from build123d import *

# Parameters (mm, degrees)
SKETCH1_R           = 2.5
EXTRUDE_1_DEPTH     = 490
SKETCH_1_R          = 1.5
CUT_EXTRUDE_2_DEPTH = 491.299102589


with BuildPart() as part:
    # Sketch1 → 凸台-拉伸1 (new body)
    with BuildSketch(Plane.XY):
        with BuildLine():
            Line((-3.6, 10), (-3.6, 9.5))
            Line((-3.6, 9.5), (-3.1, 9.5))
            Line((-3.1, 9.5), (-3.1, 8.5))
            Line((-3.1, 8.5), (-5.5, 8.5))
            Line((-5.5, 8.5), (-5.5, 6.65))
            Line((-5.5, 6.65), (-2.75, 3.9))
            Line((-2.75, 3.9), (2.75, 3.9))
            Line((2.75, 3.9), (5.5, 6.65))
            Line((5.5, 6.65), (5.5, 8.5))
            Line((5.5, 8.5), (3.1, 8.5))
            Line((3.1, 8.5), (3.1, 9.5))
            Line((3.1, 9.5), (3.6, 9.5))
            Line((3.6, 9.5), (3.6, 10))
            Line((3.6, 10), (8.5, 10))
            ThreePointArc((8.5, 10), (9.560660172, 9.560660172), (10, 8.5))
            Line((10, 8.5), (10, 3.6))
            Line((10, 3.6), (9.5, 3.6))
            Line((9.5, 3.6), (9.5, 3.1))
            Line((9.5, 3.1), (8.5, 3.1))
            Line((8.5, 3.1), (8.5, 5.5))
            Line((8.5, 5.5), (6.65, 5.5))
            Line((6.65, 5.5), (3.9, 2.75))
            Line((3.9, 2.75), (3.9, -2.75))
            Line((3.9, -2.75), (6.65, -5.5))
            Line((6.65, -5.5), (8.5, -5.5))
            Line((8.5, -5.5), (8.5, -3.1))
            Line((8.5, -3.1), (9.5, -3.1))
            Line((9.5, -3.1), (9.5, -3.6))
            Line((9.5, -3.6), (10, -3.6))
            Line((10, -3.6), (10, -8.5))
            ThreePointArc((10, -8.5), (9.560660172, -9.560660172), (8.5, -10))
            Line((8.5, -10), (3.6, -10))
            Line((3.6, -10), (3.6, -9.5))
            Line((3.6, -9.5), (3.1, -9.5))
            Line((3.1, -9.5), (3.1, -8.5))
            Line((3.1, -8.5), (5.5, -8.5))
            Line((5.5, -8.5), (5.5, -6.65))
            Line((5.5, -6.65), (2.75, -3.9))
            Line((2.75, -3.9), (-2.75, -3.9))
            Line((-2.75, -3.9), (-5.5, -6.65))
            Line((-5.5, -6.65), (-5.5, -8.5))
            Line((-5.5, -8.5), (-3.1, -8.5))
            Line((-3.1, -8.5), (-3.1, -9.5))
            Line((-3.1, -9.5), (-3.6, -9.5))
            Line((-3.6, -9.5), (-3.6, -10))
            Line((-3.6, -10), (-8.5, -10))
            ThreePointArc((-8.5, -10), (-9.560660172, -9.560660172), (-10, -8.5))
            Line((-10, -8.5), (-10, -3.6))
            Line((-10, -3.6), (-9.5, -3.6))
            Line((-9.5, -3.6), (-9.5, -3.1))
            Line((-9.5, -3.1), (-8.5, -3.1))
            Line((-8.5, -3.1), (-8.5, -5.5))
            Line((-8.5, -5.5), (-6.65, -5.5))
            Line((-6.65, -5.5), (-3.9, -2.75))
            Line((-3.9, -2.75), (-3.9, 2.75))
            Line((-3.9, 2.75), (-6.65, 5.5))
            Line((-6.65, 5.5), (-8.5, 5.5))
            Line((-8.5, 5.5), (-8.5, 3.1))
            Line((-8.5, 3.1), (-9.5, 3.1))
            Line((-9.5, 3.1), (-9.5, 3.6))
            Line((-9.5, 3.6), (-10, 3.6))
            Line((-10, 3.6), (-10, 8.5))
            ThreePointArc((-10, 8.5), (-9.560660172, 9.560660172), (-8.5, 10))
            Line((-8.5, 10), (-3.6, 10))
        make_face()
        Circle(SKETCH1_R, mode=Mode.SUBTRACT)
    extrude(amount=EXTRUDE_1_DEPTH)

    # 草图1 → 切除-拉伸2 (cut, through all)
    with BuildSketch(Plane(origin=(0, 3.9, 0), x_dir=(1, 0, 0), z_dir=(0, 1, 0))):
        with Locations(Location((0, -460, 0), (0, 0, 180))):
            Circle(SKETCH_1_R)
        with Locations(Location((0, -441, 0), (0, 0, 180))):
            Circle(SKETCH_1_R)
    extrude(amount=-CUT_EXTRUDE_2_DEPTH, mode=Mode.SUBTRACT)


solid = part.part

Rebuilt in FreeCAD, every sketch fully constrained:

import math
import FreeCAD as App
import Part
import Sketcher

doc = App.newDocument("Part")
params = doc.addObject("Spreadsheet::Sheet", "Params")
for row, (alias, value) in enumerate([
    ("sketch1_diameter", "5 mm"),
    ("sketch1_radius", "1.5 mm"),
    ("sketch1_width", "1 mm"),
    ("sketch1_width2", "4.9 mm"),
    ("sketch1_width3", "2.4 mm"),
    ("pad1_length", "490 mm"),
    ("sketch2_diameter", "3 mm"),
], start=1):
    params.set(f"A{row}", alias)
    params.set(f"B{row}", "=" + value)
    params.setAlias(f"B{row}", alias)

body = doc.addObject("PartDesign::Body", "Body")

# Sketch on XY plane
sketch1 = body.newObject("Sketcher::SketchObject", "Sketch")
sketch1.AttachmentSupport = (doc.getObject("XY_Plane"), [""])
sketch1.MapMode = "FlatFace"
sketch1.addGeometry([
    Part.LineSegment(App.Vector(-3.6, 9.5, 0), App.Vector(-3.6, 10, 0)),  # 0
    Part.LineSegment(App.Vector(-3.6, 10, 0), App.Vector(-8.5, 10, 0)),  # 1
    Part.ArcOfCircle(Part.Circle(App.Vector(-8.5, 8.5, 0), App.Vector(0, 0, 1), 1.5), math.radians(90), math.radians(180)),  # 2
    Part.LineSegment(App.Vector(-10, 8.5, 0), App.Vector(-10, 3.6, 0)),  # 3
    Part.LineSegment(App.Vector(-10, 3.6, 0), App.Vector(-9.5, 3.6, 0)),  # 4
    Part.LineSegment(App.Vector(-9.5, 3.6, 0), App.Vector(-9.5, 3.1, 0)),  # 5
    Part.LineSegment(App.Vector(-9.5, 3.1, 0), App.Vector(-8.5, 3.1, 0)),  # 6
    Part.LineSegment(App.Vector(-8.5, 3.1, 0), App.Vector(-8.5, 5.5, 0)),  # 7
    Part.LineSegment(App.Vector(-8.5, 5.5, 0), App.Vector(-6.7, 5.5, 0)),  # 8
    Part.LineSegment(App.Vector(-6.7, 5.5, 0), App.Vector(-3.9, 2.8, 0)),  # 9
    Part.LineSegment(App.Vector(-3.9, 2.8, 0), App.Vector(-3.9, -2.8, 0)),  # 10
    Part.LineSegment(App.Vector(-3.9, -2.8, 0), App.Vector(-6.7, -5.5, 0)),  # 11
    Part.LineSegment(App.Vector(-6.7, -5.5, 0), App.Vector(-8.5, -5.5, 0)),  # 12
    Part.LineSegment(App.Vector(-8.5, -5.5, 0), App.Vector(-8.5, -3.1, 0)),  # 13
    Part.LineSegment(App.Vector(-8.5, -3.1, 0), App.Vector(-9.5, -3.1, 0)),  # 14
    Part.LineSegment(App.Vector(-9.5, -3.1, 0), App.Vector(-9.5, -3.6, 0)),  # 15
    Part.LineSegment(App.Vector(-9.5, -3.6, 0), App.Vector(-10, -3.6, 0)),  # 16
    Part.LineSegment(App.Vector(-10, -3.6, 0), App.Vector(-10, -8.5, 0)),  # 17
    Part.ArcOfCircle(Part.Circle(App.Vector(-8.5, -8.5, 0), App.Vector(0, 0, 1), 1.5), math.radians(180), math.radians(270)),  # 18
    Part.LineSegment(App.Vector(-8.5, -10, 0), App.Vector(-3.6, -10, 0)),  # 19
    Part.LineSegment(App.Vector(-3.6, -10, 0), App.Vector(-3.6, -9.5, 0)),  # 20
    Part.LineSegment(App.Vector(-3.6, -9.5, 0), App.Vector(-3.1, -9.5, 0)),  # 21
    Part.LineSegment(App.Vector(-3.1, -9.5, 0), App.Vector(-3.1, -8.5, 0)),  # 22
    Part.LineSegment(App.Vector(-3.1, -8.5, 0), App.Vector(-5.5, -8.5, 0)),  # 23
    Part.LineSegment(App.Vector(-5.5, -8.5, 0), App.Vector(-5.5, -6.7, 0)),  # 24
    Part.LineSegment(App.Vector(-5.5, -6.7, 0), App.Vector(-2.8, -3.9, 0)),  # 25
    Part.LineSegment(App.Vector(-2.8, -3.9, 0), App.Vector(2.8, -3.9, 0)),  # 26
    Part.LineSegment(App.Vector(2.8, -3.9, 0), App.Vector(5.5, -6.7, 0)),  # 27
    Part.LineSegment(App.Vector(5.5, -6.7, 0), App.Vector(5.5, -8.5, 0)),  # 28
    Part.LineSegment(App.Vector(5.5, -8.5, 0), App.Vector(3.1, -8.5, 0)),  # 29
    Part.LineSegment(App.Vector(3.1, -8.5, 0), App.Vector(3.1, -9.5, 0)),  # 30
    Part.LineSegment(App.Vector(3.1, -9.5, 0), App.Vector(3.6, -9.5, 0)),  # 31
    Part.LineSegment(App.Vector(3.6, -9.5, 0), App.Vector(3.6, -10, 0)),  # 32
    Part.LineSegment(App.Vector(3.6, -10, 0), App.Vector(8.5, -10, 0)),  # 33
    Part.ArcOfCircle(Part.Circle(App.Vector(8.5, -8.5, 0), App.Vector(0, 0, 1), 1.5), math.radians(-90), math.radians(0)),  # 34
    Part.LineSegment(App.Vector(10, -8.5, 0), App.Vector(10, -3.6, 0)),  # 35
    Part.LineSegment(App.Vector(10, -3.6, 0), App.Vector(9.5, -3.6, 0)),  # 36
    Part.LineSegment(App.Vector(9.5, -3.6, 0), App.Vector(9.5, -3.1, 0)),  # 37
    Part.LineSegment(App.Vector(9.5, -3.1, 0), App.Vector(8.5, -3.1, 0)),  # 38
    Part.LineSegment(App.Vector(8.5, -3.1, 0), App.Vector(8.5, -5.5, 0)),  # 39
    Part.LineSegment(App.Vector(8.5, -5.5, 0), App.Vector(6.7, -5.5, 0)),  # 40
    Part.LineSegment(App.Vector(6.7, -5.5, 0), App.Vector(3.9, -2.8, 0)),  # 41
    Part.LineSegment(App.Vector(3.9, -2.8, 0), App.Vector(3.9, 2.8, 0)),  # 42
    Part.LineSegment(App.Vector(3.9, 2.8, 0), App.Vector(6.7, 5.5, 0)),  # 43
    Part.LineSegment(App.Vector(6.7, 5.5, 0), App.Vector(8.5, 5.5, 0)),  # 44
    Part.LineSegment(App.Vector(8.5, 5.5, 0), App.Vector(8.5, 3.1, 0)),  # 45
    Part.LineSegment(App.Vector(8.5, 3.1, 0), App.Vector(9.5, 3.1, 0)),  # 46
    Part.LineSegment(App.Vector(9.5, 3.1, 0), App.Vector(9.5, 3.6, 0)),  # 47
    Part.LineSegment(App.Vector(9.5, 3.6, 0), App.Vector(10, 3.6, 0)),  # 48
    Part.LineSegment(App.Vector(10, 3.6, 0), App.Vector(10, 8.5, 0)),  # 49
    Part.ArcOfCircle(Part.Circle(App.Vector(8.5, 8.5, 0), App.Vector(0, 0, 1), 1.5), math.radians(0), math.radians(90)),  # 50
    Part.LineSegment(App.Vector(8.5, 10, 0), App.Vector(3.6, 10, 0)),  # 51
    Part.LineSegment(App.Vector(3.6, 10, 0), App.Vector(3.6, 9.5, 0)),  # 52
    Part.LineSegment(App.Vector(3.6, 9.5, 0), App.Vector(3.1, 9.5, 0)),  # 53
    Part.LineSegment(App.Vector(3.1, 9.5, 0), App.Vector(3.1, 8.5, 0)),  # 54
    Part.LineSegment(App.Vector(3.1, 8.5, 0), App.Vector(5.5, 8.5, 0)),  # 55
    Part.LineSegment(App.Vector(5.5, 8.5, 0), App.Vector(5.5, 6.7, 0)),  # 56
    Part.LineSegment(App.Vector(5.5, 6.7, 0), App.Vector(2.8, 3.9, 0)),  # 57
    Part.LineSegment(App.Vector(2.8, 3.9, 0), App.Vector(-2.8, 3.9, 0)),  # 58
    Part.LineSegment(App.Vector(-2.8, 3.9, 0), App.Vector(-5.5, 6.7, 0)),  # 59
    Part.LineSegment(App.Vector(-5.5, 6.7, 0), App.Vector(-5.5, 8.5, 0)),  # 60
    Part.LineSegment(App.Vector(-5.5, 8.5, 0), App.Vector(-3.1, 8.5, 0)),  # 61
    Part.LineSegment(App.Vector(-3.1, 8.5, 0), App.Vector(-3.1, 9.5, 0)),  # 62
    Part.LineSegment(App.Vector(-3.1, 9.5, 0), App.Vector(-3.6, 9.5, 0)),  # 63
    Part.Circle(App.Vector(0, 0, 0), App.Vector(0, 0, 1), 2.5),  # 64
], False)
sketch1.addConstraint([
    Sketcher.Constraint("Coincident", 0, 2, 1, 1),
    Sketcher.Constraint("Tangent", 1, 2, 2, 1),
    Sketcher.Constraint("Tangent", 2, 2, 3, 1),
    Sketcher.Constraint("Coincident", 3, 2, 4, 1),
    Sketcher.Constraint("Coincident", 4, 2, 5, 1),
    Sketcher.Constraint("Coincident", 5, 2, 6, 1),
    Sketcher.Constraint("Coincident", 6, 2, 7, 1),
    Sketcher.Constraint("Coincident", 7, 2, 8, 1),
    Sketcher.Constraint("Coincident", 8, 2, 9, 1),
    Sketcher.Constraint("Coincident", 9, 2, 10, 1),
    Sketcher.Constraint("Coincident", 10, 2, 11, 1),
    Sketcher.Constraint("Coincident", 11, 2, 12, 1),
    Sketcher.Constraint("Coincident", 12, 2, 13, 1),
    Sketcher.Constraint("Coincident", 13, 2, 14, 1),
    Sketcher.Constraint("Coincident", 14, 2, 15, 1),
    Sketcher.Constraint("Coincident", 15, 2, 16, 1),
    Sketcher.Constraint("Coincident", 16, 2, 17, 1),
    Sketcher.Constraint("Tangent", 17, 2, 18, 1),
    Sketcher.Constraint("Tangent", 18, 2, 19, 1),
    Sketcher.Constraint("Coincident", 19, 2, 20, 1),
    Sketcher.Constraint("Coincident", 20, 2, 21, 1),
    Sketcher.Constraint("Coincident", 21, 2, 22, 1),
    Sketcher.Constraint("Coincident", 22, 2, 23, 1),
    Sketcher.Constraint("Coincident", 23, 2, 24, 1),
    Sketcher.Constraint("Coincident", 24, 2, 25, 1),
    Sketcher.Constraint("Coincident", 25, 2, 26, 1),
    Sketcher.Constraint("Coincident", 26, 2, 27, 1),
    Sketcher.Constraint("Coincident", 27, 2, 28, 1),
    Sketcher.Constraint("Coincident", 28, 2, 29, 1),
    Sketcher.Constraint("Coincident", 29, 2, 30, 1),
    Sketcher.Constraint("Coincident", 30, 2, 31, 1),
    Sketcher.Constraint("Coincident", 31, 2, 32, 1),
    Sketcher.Constraint("Coincident", 32, 2, 33, 1),
    Sketcher.Constraint("Tangent", 33, 2, 34, 1),
    Sketcher.Constraint("Tangent", 34, 2, 35, 1),
    Sketcher.Constraint("Coincident", 35, 2, 36, 1),
    Sketcher.Constraint("Coincident", 36, 2, 37, 1),
    Sketcher.Constraint("Coincident", 37, 2, 38, 1),
    Sketcher.Constraint("Coincident", 38, 2, 39, 1),
    Sketcher.Constraint("Coincident", 39, 2, 40, 1),
    Sketcher.Constraint("Coincident", 40, 2, 41, 1),
    Sketcher.Constraint("Coincident", 41, 2, 42, 1),
    Sketcher.Constraint("Coincident", 42, 2, 43, 1),
    Sketcher.Constraint("Coincident", 43, 2, 44, 1),
    Sketcher.Constraint("Coincident", 44, 2, 45, 1),
    Sketcher.Constraint("Coincident", 45, 2, 46, 1),
    Sketcher.Constraint("Coincident", 46, 2, 47, 1),
    Sketcher.Constraint("Coincident", 47, 2, 48, 1),
    Sketcher.Constraint("Coincident", 48, 2, 49, 1),
    Sketcher.Constraint("Tangent", 49, 2, 50, 1),
    Sketcher.Constraint("Tangent", 50, 2, 51, 1),
    Sketcher.Constraint("Coincident", 51, 2, 52, 1),
    Sketcher.Constraint("Coincident", 52, 2, 53, 1),
    Sketcher.Constraint("Coincident", 53, 2, 54, 1),
    Sketcher.Constraint("Coincident", 54, 2, 55, 1),
    Sketcher.Constraint("Coincident", 55, 2, 56, 1),
    Sketcher.Constraint("Coincident", 56, 2, 57, 1),
    Sketcher.Constraint("Coincident", 57, 2, 58, 1),
    Sketcher.Constraint("Coincident", 58, 2, 59, 1),
    Sketcher.Constraint("Coincident", 59, 2, 60, 1),
    Sketcher.Constraint("Coincident", 60, 2, 61, 1),
    Sketcher.Constraint("Coincident", 61, 2, 62, 1),
    Sketcher.Constraint("Coincident", 62, 2, 63, 1),
    Sketcher.Constraint("Coincident", 63, 2, 0, 1),
    Sketcher.Constraint("Vertical", 0),
    Sketcher.Constraint("Horizontal", 1),
    Sketcher.Constraint("Vertical", 3),
    Sketcher.Constraint("Horizontal", 4),
    Sketcher.Constraint("Vertical", 5),
    Sketcher.Constraint("Horizontal", 6),
    Sketcher.Constraint("Vertical", 7),
    Sketcher.Constraint("Horizontal", 8),
    Sketcher.Constraint("Vertical", 10),
    Sketcher.Constraint("Horizontal", 12),
    Sketcher.Constraint("Vertical", 13),
    Sketcher.Constraint("Horizontal", 14),
    Sketcher.Constraint("Vertical", 15),
    Sketcher.Constraint("Horizontal", 16),
    Sketcher.Constraint("Vertical", 17),
    Sketcher.Constraint("Horizontal", 19),
    Sketcher.Constraint("Vertical", 20),
    Sketcher.Constraint("Horizontal", 21),
    Sketcher.Constraint("Vertical", 22),
    Sketcher.Constraint("Horizontal", 23),
    Sketcher.Constraint("Vertical", 24),
    Sketcher.Constraint("Horizontal", 26),
    Sketcher.Constraint("Vertical", 28),
    Sketcher.Constraint("Horizontal", 29),
    Sketcher.Constraint("Vertical", 30),
    Sketcher.Constraint("Horizontal", 31),
    Sketcher.Constraint("Vertical", 32),
    Sketcher.Constraint("Horizontal", 33),
    Sketcher.Constraint("Vertical", 35),
    Sketcher.Constraint("Horizontal", 36),
    Sketcher.Constraint("Vertical", 37),
    Sketcher.Constraint("Horizontal", 38),
    Sketcher.Constraint("Vertical", 39),
    Sketcher.Constraint("Horizontal", 40),
    Sketcher.Constraint("Vertical", 42),
    Sketcher.Constraint("Horizontal", 44),
    Sketcher.Constraint("Vertical", 45),
    Sketcher.Constraint("Horizontal", 46),
    Sketcher.Constraint("Vertical", 47),
    Sketcher.Constraint("Horizontal", 48),
    Sketcher.Constraint("Vertical", 49),
    Sketcher.Constraint("Horizontal", 51),
    Sketcher.Constraint("Vertical", 52),
    Sketcher.Constraint("Horizontal", 53),
    Sketcher.Constraint("Vertical", 54),
    Sketcher.Constraint("Horizontal", 55),
    Sketcher.Constraint("Vertical", 56),
    Sketcher.Constraint("Horizontal", 58),
    Sketcher.Constraint("Vertical", 60),
    Sketcher.Constraint("Horizontal", 61),
    Sketcher.Constraint("Vertical", 62),
    Sketcher.Constraint("Horizontal", 63),
    Sketcher.Constraint("Coincident", 64, 3, -1, 1),
    Sketcher.Constraint("Equal", 2, 18),
    Sketcher.Constraint("Equal", 18, 34),
    Sketcher.Constraint("Equal", 34, 50),
    Sketcher.Constraint("Symmetric", 2, 3, 34, 3, -1, 1),
    Sketcher.Constraint("Symmetric", 18, 3, 50, 3, -1, 1),
    Sketcher.Constraint("Symmetric", 4, 2, 36, 2, -1, 1),
    Sketcher.Constraint("Symmetric", 6, 2, 38, 2, -1, 1),
    Sketcher.Constraint("Symmetric", 8, 2, 40, 2, -1, 1),
    Sketcher.Constraint("Symmetric", 9, 2, 41, 2, -1, 1),
    Sketcher.Constraint("Symmetric", 11, 2, 43, 2, -1, 1),
    Sketcher.Constraint("Symmetric", 13, 2, 45, 2, -1, 1),
    Sketcher.Constraint("Symmetric", 15, 2, 47, 2, -1, 1),
    Sketcher.Constraint("Symmetric", 20, 2, 52, 2, -1, 1),
    Sketcher.Constraint("Symmetric", 22, 2, 54, 2, -1, 1),
    Sketcher.Constraint("Symmetric", 24, 2, 56, 2, -1, 1),
    Sketcher.Constraint("Symmetric", 25, 2, 57, 2, -1, 1),
    Sketcher.Constraint("Symmetric", 27, 2, 59, 2, -1, 1),
    Sketcher.Constraint("Symmetric", 29, 2, 61, 2, -1, 1),
    Sketcher.Constraint("Symmetric", 31, 2, 63, 2, -1, 1),
    Sketcher.Constraint("Symmetric", 18, 3, 34, 3, -2),
    Sketcher.Constraint("Symmetric", 24, 2, 27, 2, -2),
    Sketcher.Constraint("Symmetric", 22, 2, 29, 2, -2),
    Sketcher.Constraint("Symmetric", 20, 2, 31, 2, -2),
    Sketcher.Constraint("Symmetric", 15, 2, 36, 2, -2),
    Sketcher.Constraint("Symmetric", 13, 2, 38, 2, -2),
    Sketcher.Constraint("Symmetric", 11, 2, 40, 2, -2),
    Sketcher.Constraint("Perpendicular", 9, 11),
    Sketcher.Constraint("Parallel", 11, 25),
    Sketcher.Constraint("Perpendicular", 25, 27),
    Sketcher.Constraint("Perpendicular", 41, 43),
    Sketcher.Constraint("Perpendicular", 57, 59),
    Sketcher.Constraint("Horizontal", 17, 2, 22, 2),
    Sketcher.Constraint("Horizontal", 10, 2, 41, 2),
    Sketcher.Constraint("Vertical", 1, 2, 6, 2),
    Sketcher.Constraint("Equal", 16, 21),
    Sketcher.Constraint("Equal", 63, 0),
    Sketcher.Constraint("Equal", 51, 3),
    Sketcher.Constraint("Equal", 0, 5),
    Sketcher.Constraint("Equal", 61, 7),
    Sketcher.Constraint("Equal", 58, 10),
    Sketcher.Constraint("Equal", 44, 24),
    Sketcher.Constraint("Equal", 11, 25),
    Sketcher.Constraint("Diameter", 64, 5.0),
    Sketcher.Constraint("Radius", 2, 1.5),
    Sketcher.Constraint("DistanceX", 6, 1, 6, 2, 1.0),
    Sketcher.Constraint("DistanceX", 1, 2, 1, 1, 4.9),
    Sketcher.Constraint("DistanceX", 23, 2, 23, 1, 2.4),
    Sketcher.Constraint("DistanceX", 26, 1, 26, 2, 5.5),
    Sketcher.Constraint("DistanceY", -1, 1, 0, 2, 10.0),
    Sketcher.Constraint("DistanceX", 8, 1, 8, 2, 1.85),
])
sketch1.setExpression("Constraints[159]", "Params.sketch1_diameter")
sketch1.setExpression("Constraints[160]", "Params.sketch1_radius")
sketch1.setExpression("Constraints[161]", "Params.sketch1_width")
sketch1.setExpression("Constraints[162]", "Params.sketch1_width2")
sketch1.setExpression("Constraints[163]", "Params.sketch1_width3")
pad1 = body.newObject("PartDesign::Pad", "Pad")
pad1.Profile = sketch1
pad1.setExpression("Length", "Params.pad1_length")

# Sketch on XZ plane
sketch2 = body.newObject("Sketcher::SketchObject", "Sketch001")
sketch2.AttachmentSupport = (doc.getObject("XZ_Plane"), [""])
sketch2.MapMode = "FlatFace"
sketch2.AttachmentOffset = App.Placement(App.Vector(0, 0, -3.9), App.Rotation())
sketch2.addGeometry([
    Part.Circle(App.Vector(0, 460, 0), App.Vector(0, 0, 1), 1.5),
    Part.Circle(App.Vector(0, 441, 0), App.Vector(0, 0, 1), 1.5),
], False)
sketch2.addConstraint([
    Sketcher.Constraint("Equal", 0, 1),
    Sketcher.Constraint("PointOnObject", 0, 3, -2),
    Sketcher.Constraint("PointOnObject", 1, 3, -2),
    Sketcher.Constraint("Diameter", 0, 3.0),
    Sketcher.Constraint("DistanceY", -1, 1, 0, 3, 460.0),
    Sketcher.Constraint("DistanceY", -1, 1, 1, 3, 441.0),
])
sketch2.setExpression("Constraints[3]", "Params.sketch2_diameter")
pocket1 = body.newObject("PartDesign::Pocket", "Pocket")
pocket1.Profile = sketch2
pocket1.Type = "ThroughAll"
pocket1.Reversed = True

doc.recompute()
